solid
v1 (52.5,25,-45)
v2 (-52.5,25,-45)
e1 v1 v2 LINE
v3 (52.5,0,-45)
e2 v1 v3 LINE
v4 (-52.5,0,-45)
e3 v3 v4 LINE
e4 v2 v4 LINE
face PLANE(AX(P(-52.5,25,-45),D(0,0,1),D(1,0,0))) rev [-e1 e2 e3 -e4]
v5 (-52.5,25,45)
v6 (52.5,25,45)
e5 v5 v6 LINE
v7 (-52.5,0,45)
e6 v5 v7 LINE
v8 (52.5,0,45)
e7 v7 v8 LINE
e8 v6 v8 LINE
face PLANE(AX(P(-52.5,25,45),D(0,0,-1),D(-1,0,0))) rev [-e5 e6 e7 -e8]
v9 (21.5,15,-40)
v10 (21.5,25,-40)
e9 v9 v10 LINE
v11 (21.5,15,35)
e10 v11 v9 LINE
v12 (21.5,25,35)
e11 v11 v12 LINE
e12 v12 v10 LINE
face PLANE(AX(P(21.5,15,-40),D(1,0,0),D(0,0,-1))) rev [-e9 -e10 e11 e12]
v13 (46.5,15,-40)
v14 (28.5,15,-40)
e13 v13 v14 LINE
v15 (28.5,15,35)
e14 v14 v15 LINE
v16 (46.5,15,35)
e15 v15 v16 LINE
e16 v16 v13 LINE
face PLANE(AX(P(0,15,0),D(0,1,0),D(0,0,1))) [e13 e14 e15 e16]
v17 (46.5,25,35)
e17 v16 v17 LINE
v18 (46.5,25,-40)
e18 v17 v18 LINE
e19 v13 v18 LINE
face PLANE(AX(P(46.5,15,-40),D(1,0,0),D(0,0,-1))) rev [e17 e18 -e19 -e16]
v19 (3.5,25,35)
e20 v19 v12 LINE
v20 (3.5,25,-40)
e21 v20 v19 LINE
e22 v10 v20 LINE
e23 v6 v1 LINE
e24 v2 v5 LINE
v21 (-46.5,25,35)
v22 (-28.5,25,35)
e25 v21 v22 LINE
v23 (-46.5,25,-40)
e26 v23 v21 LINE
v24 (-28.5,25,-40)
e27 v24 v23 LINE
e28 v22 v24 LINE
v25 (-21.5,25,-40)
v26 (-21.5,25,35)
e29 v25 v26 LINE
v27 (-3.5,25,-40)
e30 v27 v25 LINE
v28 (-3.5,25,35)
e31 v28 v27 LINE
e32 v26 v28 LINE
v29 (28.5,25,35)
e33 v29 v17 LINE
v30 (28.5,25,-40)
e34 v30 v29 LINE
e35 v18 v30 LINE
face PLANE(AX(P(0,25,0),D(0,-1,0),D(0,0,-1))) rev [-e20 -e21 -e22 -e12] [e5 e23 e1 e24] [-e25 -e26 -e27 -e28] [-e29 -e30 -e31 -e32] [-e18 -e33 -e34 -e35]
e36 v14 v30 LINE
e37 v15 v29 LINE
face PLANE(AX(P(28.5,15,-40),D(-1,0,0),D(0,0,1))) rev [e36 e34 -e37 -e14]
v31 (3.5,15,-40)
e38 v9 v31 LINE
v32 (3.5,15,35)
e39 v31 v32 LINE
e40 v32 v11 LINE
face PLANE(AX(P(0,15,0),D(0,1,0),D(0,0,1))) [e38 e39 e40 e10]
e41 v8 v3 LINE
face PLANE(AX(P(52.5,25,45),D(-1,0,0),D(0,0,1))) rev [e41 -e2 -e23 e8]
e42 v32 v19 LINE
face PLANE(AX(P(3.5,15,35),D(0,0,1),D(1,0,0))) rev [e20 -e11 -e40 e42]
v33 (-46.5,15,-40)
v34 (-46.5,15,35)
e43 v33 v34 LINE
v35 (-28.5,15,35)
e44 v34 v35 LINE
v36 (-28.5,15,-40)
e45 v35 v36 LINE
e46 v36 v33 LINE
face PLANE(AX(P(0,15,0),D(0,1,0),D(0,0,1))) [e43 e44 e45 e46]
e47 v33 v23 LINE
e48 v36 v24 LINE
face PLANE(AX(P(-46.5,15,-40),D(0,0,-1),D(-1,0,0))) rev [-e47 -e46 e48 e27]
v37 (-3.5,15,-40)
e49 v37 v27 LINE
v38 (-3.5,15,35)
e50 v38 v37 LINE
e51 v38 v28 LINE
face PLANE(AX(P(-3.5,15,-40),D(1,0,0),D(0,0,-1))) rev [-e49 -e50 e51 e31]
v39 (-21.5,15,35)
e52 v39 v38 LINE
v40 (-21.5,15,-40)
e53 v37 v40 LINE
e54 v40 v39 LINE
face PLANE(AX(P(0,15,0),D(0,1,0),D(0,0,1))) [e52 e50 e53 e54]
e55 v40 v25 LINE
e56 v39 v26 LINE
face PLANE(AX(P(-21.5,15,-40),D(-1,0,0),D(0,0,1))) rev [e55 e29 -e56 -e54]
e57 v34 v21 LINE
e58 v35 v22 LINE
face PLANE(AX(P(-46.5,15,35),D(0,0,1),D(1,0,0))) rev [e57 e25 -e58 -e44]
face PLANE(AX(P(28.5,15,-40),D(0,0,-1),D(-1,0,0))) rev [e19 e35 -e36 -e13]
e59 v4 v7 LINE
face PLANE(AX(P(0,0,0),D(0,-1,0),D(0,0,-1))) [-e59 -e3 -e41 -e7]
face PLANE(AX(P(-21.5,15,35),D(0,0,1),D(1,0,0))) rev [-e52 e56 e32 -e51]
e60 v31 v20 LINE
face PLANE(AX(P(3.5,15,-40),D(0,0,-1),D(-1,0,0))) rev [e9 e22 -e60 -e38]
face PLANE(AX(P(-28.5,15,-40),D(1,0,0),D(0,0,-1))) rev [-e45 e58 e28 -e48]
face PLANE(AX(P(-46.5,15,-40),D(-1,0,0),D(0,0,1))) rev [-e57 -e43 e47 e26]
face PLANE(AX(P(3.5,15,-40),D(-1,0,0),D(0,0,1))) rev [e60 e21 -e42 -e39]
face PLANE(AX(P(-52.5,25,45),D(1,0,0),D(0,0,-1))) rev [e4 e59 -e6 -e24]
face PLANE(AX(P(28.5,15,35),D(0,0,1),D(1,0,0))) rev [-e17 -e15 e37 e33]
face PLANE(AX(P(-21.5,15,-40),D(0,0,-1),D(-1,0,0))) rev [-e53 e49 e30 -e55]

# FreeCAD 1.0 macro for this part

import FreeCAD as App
import Part
import Sketcher
Q = App.Units.Quantity


def add_polygon(sketch, points):
    """Adds a closed chain of lines whose ends are joined by coincident constraints."""
    first, n = sketch.GeometryCount, len(points)
    for a, b in zip(points, points[1:] + points[:1]):
        sketch.addGeometry(Part.LineSegment(App.Vector(*a, 0), App.Vector(*b, 0)), False)
    for i in range(n):
        sketch.addConstraint(Sketcher.Constraint("Coincident", first + i, 2, first + (i + 1) % n, 1))

doc = App.newDocument("Part")
body = doc.addObject("PartDesign::Body", "Body")

# Sketch on XZ plane
sketch1 = body.newObject("Sketcher::SketchObject", "Sketch")
sketch1.AttachmentSupport = (doc.getObject("XZ_Plane"), [""])
sketch1.MapMode = "FlatFace"
add_polygon(sketch1, [(-52, -45), (-52, 45), (52, 45), (52, -45)])  # lines 0-3
sketch1.addConstraint(Sketcher.Constraint("Vertical", 0))
sketch1.addConstraint(Sketcher.Constraint("Horizontal", 1))
sketch1.addConstraint(Sketcher.Constraint("Vertical", 2))
sketch1.addConstraint(Sketcher.Constraint("Horizontal", 3))
sketch1.addConstraint(Sketcher.Constraint("Symmetric", 0, 2, 2, 2, -1, 1))
sketch1.addConstraint(Sketcher.Constraint("DistanceX", 1, 1, 1, 2, Q("105 mm")))
sketch1.addConstraint(Sketcher.Constraint("DistanceY", 0, 1, 0, 2, Q("90 mm")))
pad1 = body.newObject("PartDesign::Pad", "Pad")
pad1.Profile = sketch1
pad1.Length = 25
pad1.Reversed = True

# Sketch on XZ plane
sketch2 = body.newObject("Sketcher::SketchObject", "Sketch001")
sketch2.AttachmentSupport = (doc.getObject("XZ_Plane"), [""])
sketch2.MapMode = "FlatFace"
sketch2.AttachmentOffset = App.Placement(App.Vector(0, 0, -25), App.Rotation())
add_polygon(sketch2, [(-46, -40), (-46, 35), (-28, 35), (-28, -40)])  # lines 0-3
add_polygon(sketch2, [(-22, -40), (-22, 35), (-4, 35), (-4, -40)])  # lines 4-7
add_polygon(sketch2, [(4, -40), (4, 35), (22, 35), (22, -40)])  # lines 8-11
add_polygon(sketch2, [(28, -40), (28, 35), (46, 35), (46, -40)])  # lines 12-15
sketch2.addConstraint(Sketcher.Constraint("Vertical", 0))
sketch2.addConstraint(Sketcher.Constraint("Horizontal", 1))
sketch2.addConstraint(Sketcher.Constraint("Vertical", 2))
sketch2.addConstraint(Sketcher.Constraint("Horizontal", 3))
sketch2.addConstraint(Sketcher.Constraint("Vertical", 4))
sketch2.addConstraint(Sketcher.Constraint("Horizontal", 5))
sketch2.addConstraint(Sketcher.Constraint("Vertical", 6))
sketch2.addConstraint(Sketcher.Constraint("Horizontal", 7))
sketch2.addConstraint(Sketcher.Constraint("Vertical", 8))
sketch2.addConstraint(Sketcher.Constraint("Horizontal", 9))
sketch2.addConstraint(Sketcher.Constraint("Vertical", 10))
sketch2.addConstraint(Sketcher.Constraint("Horizontal", 11))
sketch2.addConstraint(Sketcher.Constraint("Vertical", 12))
sketch2.addConstraint(Sketcher.Constraint("Horizontal", 13))
sketch2.addConstraint(Sketcher.Constraint("Vertical", 14))
sketch2.addConstraint(Sketcher.Constraint("Horizontal", 15))
sketch2.addConstraint(Sketcher.Constraint("Symmetric", 5, 2, 8, 2, -2))
sketch2.addConstraint(Sketcher.Constraint("Symmetric", 7, 2, 10, 2, -2))
sketch2.addConstraint(Sketcher.Constraint("Symmetric", 1, 2, 12, 2, -2))
sketch2.addConstraint(Sketcher.Constraint("Symmetric", 3, 2, 14, 2, -2))
sketch2.addConstraint(Sketcher.Constraint("Horizontal", 1, 2, 4, 2))
sketch2.addConstraint(Sketcher.Constraint("Horizontal", 3, 2, 6, 2))
sketch2.addConstraint(Sketcher.Constraint("Equal", 3, 5))
sketch2.addConstraint(Sketcher.Constraint("DistanceX", 1, 1, 1, 2, Q("18 mm")))
sketch2.addConstraint(Sketcher.Constraint("DistanceY", 0, 1, 0, 2, Q("75 mm")))
sketch2.addConstraint(Sketcher.Constraint("DistanceY", -1, 1, 0, 2, Q("35 mm")))
sketch2.addConstraint(Sketcher.Constraint("DistanceX", 1, 2, 4, 2, Q("7 mm")))
sketch2.addConstraint(Sketcher.Constraint("DistanceX", 5, 2, 8, 2, Q("7 mm")))
pocket1 = body.newObject("PartDesign::Pocket", "Pocket")
pocket1.Profile = sketch2
pocket1.Length = 10
pocket1.Reversed = True

doc.recompute()
